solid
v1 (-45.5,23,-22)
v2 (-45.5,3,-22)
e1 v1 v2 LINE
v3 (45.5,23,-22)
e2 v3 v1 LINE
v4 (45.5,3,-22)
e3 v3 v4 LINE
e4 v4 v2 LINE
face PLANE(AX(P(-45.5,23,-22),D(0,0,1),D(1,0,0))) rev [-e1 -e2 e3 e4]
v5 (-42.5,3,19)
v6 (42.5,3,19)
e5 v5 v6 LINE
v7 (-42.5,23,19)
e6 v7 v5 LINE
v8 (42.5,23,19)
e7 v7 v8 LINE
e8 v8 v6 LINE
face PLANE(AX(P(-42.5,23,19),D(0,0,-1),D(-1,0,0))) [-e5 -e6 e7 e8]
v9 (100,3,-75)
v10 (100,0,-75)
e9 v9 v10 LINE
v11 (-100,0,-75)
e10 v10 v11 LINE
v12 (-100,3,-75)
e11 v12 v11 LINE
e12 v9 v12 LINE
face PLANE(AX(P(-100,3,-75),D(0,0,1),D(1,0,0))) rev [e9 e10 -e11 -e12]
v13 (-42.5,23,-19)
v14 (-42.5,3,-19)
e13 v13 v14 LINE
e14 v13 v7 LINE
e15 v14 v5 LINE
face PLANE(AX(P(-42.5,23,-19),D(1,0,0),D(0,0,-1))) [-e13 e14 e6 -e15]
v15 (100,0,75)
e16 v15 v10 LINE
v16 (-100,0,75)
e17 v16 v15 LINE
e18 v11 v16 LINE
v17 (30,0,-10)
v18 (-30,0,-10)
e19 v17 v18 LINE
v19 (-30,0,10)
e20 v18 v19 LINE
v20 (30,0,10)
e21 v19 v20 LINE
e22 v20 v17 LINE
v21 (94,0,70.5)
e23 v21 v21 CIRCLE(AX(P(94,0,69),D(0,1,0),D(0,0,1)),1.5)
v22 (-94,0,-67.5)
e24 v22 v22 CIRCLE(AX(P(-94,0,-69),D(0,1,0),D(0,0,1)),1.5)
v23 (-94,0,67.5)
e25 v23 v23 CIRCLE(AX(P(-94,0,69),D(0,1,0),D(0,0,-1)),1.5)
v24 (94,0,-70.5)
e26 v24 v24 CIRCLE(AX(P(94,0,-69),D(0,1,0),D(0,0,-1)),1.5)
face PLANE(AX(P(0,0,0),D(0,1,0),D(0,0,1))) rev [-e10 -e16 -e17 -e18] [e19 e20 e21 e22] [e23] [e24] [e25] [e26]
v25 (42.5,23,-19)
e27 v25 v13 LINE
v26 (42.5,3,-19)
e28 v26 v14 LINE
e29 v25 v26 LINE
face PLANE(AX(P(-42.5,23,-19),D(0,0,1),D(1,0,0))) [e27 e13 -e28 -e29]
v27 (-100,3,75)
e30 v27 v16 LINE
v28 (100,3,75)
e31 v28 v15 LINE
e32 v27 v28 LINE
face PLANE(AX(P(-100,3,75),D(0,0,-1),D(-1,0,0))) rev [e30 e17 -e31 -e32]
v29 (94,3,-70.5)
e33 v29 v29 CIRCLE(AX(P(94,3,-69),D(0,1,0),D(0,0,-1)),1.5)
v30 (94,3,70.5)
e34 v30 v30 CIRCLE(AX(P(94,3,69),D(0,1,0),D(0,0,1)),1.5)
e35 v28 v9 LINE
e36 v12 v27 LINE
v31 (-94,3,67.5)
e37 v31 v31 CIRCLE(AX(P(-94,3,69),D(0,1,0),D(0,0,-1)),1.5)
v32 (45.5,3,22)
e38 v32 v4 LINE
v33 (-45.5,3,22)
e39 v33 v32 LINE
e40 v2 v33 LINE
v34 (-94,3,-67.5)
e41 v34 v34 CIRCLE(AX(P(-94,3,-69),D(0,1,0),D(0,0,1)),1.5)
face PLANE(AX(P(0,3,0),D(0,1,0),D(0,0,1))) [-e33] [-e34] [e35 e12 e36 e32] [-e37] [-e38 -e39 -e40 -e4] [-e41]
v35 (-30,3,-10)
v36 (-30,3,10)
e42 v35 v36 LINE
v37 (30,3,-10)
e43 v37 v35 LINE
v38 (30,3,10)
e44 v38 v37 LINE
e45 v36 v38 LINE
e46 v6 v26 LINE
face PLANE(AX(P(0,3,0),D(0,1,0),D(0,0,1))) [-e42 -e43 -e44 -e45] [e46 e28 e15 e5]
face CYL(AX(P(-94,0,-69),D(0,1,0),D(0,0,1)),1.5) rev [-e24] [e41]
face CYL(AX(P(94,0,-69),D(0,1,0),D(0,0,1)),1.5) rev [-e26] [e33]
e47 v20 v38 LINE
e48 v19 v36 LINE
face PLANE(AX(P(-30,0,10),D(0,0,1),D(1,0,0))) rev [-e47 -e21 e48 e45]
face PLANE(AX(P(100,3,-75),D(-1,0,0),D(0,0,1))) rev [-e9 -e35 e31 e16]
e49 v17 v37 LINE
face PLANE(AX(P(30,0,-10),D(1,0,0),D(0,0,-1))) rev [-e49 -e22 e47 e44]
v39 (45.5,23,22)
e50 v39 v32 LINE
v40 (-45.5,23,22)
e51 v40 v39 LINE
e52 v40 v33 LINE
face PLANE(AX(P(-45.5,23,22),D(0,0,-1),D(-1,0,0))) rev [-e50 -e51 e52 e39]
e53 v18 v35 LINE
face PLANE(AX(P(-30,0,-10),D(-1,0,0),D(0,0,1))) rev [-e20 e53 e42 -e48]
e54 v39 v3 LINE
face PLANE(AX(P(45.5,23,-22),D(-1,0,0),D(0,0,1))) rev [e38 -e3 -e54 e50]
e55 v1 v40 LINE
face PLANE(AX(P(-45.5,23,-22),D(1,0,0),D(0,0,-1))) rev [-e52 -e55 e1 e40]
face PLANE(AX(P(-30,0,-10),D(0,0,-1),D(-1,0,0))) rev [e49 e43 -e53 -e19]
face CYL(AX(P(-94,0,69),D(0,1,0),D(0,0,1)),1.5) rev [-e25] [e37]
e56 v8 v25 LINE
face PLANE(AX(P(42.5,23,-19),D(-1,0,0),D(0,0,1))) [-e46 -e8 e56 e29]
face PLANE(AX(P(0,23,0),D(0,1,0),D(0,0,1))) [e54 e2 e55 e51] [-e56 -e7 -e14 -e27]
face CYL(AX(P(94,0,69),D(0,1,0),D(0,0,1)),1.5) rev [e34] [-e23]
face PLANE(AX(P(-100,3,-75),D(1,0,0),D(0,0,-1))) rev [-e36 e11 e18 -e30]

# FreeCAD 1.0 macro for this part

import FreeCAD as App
import Part
import Sketcher

V = App.Vector
Q = App.Units.Quantity

doc = App.newDocument("Part")
body = doc.addObject("PartDesign::Body", "Body")

# Sketch on XZ plane
sketch1 = body.newObject("Sketcher::SketchObject", "Sketch")
sketch1.AttachmentSupport = (doc.getObject("XZ_Plane"), [""])
sketch1.MapMode = "FlatFace"
sketch1.addGeometry(Part.LineSegment(V(-100, -75, 0), V(-100, 75, 0)), False)
sketch1.addGeometry(Part.LineSegment(V(-100, 75, 0), V(100, 75, 0)), False)
sketch1.addGeometry(Part.LineSegment(V(100, 75, 0), V(100, -75, 0)), False)
sketch1.addGeometry(Part.LineSegment(V(100, -75, 0), V(-100, -75, 0)), False)
sketch1.addConstraint(Sketcher.Constraint("Coincident", 0, 2, 1, 1))
sketch1.addConstraint(Sketcher.Constraint("Coincident", 1, 2, 2, 1))
sketch1.addConstraint(Sketcher.Constraint("Coincident", 2, 2, 3, 1))
sketch1.addConstraint(Sketcher.Constraint("Coincident", 3, 2, 0, 1))
sketch1.addConstraint(Sketcher.Constraint("Vertical", 0))
sketch1.addConstraint(Sketcher.Constraint("Horizontal", 1))
sketch1.addConstraint(Sketcher.Constraint("Vertical", 2))
sketch1.addConstraint(Sketcher.Constraint("Horizontal", 3))
sketch1.addConstraint(Sketcher.Constraint("Symmetric", 0, 2, 2, 2, -1, 1))
sketch1.addConstraint(Sketcher.Constraint("DistanceX", 1, 1, 1, 2, Q("200 mm")))
sketch1.addConstraint(Sketcher.Constraint("DistanceY", 0, 1, 0, 2, Q("150 mm")))
pad1 = body.newObject("PartDesign::Pad", "Pad")
pad1.Profile = sketch1
pad1.Length = 3
pad1.Reversed = True

# Sketch on XZ plane
sketch2 = body.newObject("Sketcher::SketchObject", "Sketch001")
sketch2.AttachmentSupport = (doc.getObject("XZ_Plane"), [""])
sketch2.MapMode = "FlatFace"
sketch2.AttachmentOffset = App.Placement(V(0, 0, -3), App.Rotation())
sketch2.addGeometry(Part.Circle(V(94, 69, 0), V(0, 0, 1), 1.5), False)
sketch2.addGeometry(Part.Circle(V(94, -69, 0), V(0, 0, 1), 1.5), False)
sketch2.addGeometry(Part.Circle(V(-94, 69, 0), V(0, 0, 1), 1.5), False)
sketch2.addGeometry(Part.Circle(V(-94, -69, 0), V(0, 0, 1), 1.5), False)
sketch2.addConstraint(Sketcher.Constraint("Equal", 0, 1))
sketch2.addConstraint(Sketcher.Constraint("Equal", 1, 2))
sketch2.addConstraint(Sketcher.Constraint("Equal", 2, 3))
sketch2.addConstraint(Sketcher.Constraint("Symmetric", 1, 3, 2, 3, -1, 1))
sketch2.addConstraint(Sketcher.Constraint("Symmetric", 0, 3, 3, 3, -1, 1))
sketch2.addConstraint(Sketcher.Constraint("Symmetric", 0, 3, 2, 3, -2))
sketch2.addConstraint(Sketcher.Constraint("Diameter", 0, Q("3 mm")))
sketch2.addConstraint(Sketcher.Constraint("DistanceX", -1, 1, 0, 3, Q("94 mm")))
sketch2.addConstraint(Sketcher.Constraint("DistanceY", -1, 1, 0, 3, Q("69 mm")))
pocket1 = body.newObject("PartDesign::Pocket", "Pocket")
pocket1.Profile = sketch2
pocket1.Type = "ThroughAll"
pocket1.Reversed = True

# Sketch on XZ plane
sketch3 = body.newObject("Sketcher::SketchObject", "Sketch002")
sketch3.AttachmentSupport = (doc.getObject("XZ_Plane"), [""])
sketch3.MapMode = "FlatFace"
sketch3.AttachmentOffset = App.Placement(V(0, 0, -3), App.Rotation())
sketch3.addGeometry(Part.LineSegment(V(-30, -10, 0), V(-30, 10, 0)), False)
sketch3.addGeometry(Part.LineSegment(V(-30, 10, 0), V(30, 10, 0)), False)
sketch3.addGeometry(Part.LineSegment(V(30, 10, 0), V(30, -10, 0)), False)
sketch3.addGeometry(Part.LineSegment(V(30, -10, 0), V(-30, -10, 0)), False)
sketch3.addConstraint(Sketcher.Constraint("Coincident", 0, 2, 1, 1))
sketch3.addConstraint(Sketcher.Constraint("Coincident", 1, 2, 2, 1))
sketch3.addConstraint(Sketcher.Constraint("Coincident", 2, 2, 3, 1))
sketch3.addConstraint(Sketcher.Constraint("Coincident", 3, 2, 0, 1))
sketch3.addConstraint(Sketcher.Constraint("Vertical", 0))
sketch3.addConstraint(Sketcher.Constraint("Horizontal", 1))
sketch3.addConstraint(Sketcher.Constraint("Vertical", 2))
sketch3.addConstraint(Sketcher.Constraint("Horizontal", 3))
sketch3.addConstraint(Sketcher.Constraint("Symmetric", 0, 2, 2, 2, -1, 1))
sketch3.addConstraint(Sketcher.Constraint("DistanceX", 1, 1, 1, 2, Q("60 mm")))
sketch3.addConstraint(Sketcher.Constraint("DistanceY", 0, 1, 0, 2, Q("20 mm")))
pocket2 = body.newObject("PartDesign::Pocket", "Pocket001")
pocket2.Profile = sketch3
pocket2.Type = "ThroughAll"
pocket2.Reversed = True

# Sketch on XZ plane
sketch4 = body.newObject("Sketcher::SketchObject", "Sketch003")
sketch4.AttachmentSupport = (doc.getObject("XZ_Plane"), [""])
sketch4.MapMode = "FlatFace"
sketch4.AttachmentOffset = App.Placement(V(0, 0, -3), App.Rotation())
sketch4.addGeometry(Part.LineSegment(V(-46, -22, 0), V(-46, 22, 0)), False)
sketch4.addGeometry(Part.LineSegment(V(-46, 22, 0), V(46, 22, 0)), False)
sketch4.addGeometry(Part.LineSegment(V(46, 22, 0), V(46, -22, 0)), False)
sketch4.addGeometry(Part.LineSegment(V(46, -22, 0), V(-46, -22, 0)), False)
sketch4.addGeometry(Part.LineSegment(V(42, 19, 0), V(-42, 19, 0)), False)
sketch4.addGeometry(Part.LineSegment(V(-42, 19, 0), V(-42, -19, 0)), False)
sketch4.addGeometry(Part.LineSegment(V(-42, -19, 0), V(42, -19, 0)), False)
sketch4.addGeometry(Part.LineSegment(V(42, -19, 0), V(42, 19, 0)), False)
sketch4.addConstraint(Sketcher.Constraint("Coincident", 0, 2, 1, 1))
sketch4.addConstraint(Sketcher.Constraint("Coincident", 1, 2, 2, 1))
sketch4.addConstraint(Sketcher.Constraint("Coincident", 2, 2, 3, 1))
sketch4.addConstraint(Sketcher.Constraint("Coincident", 3, 2, 0, 1))
sketch4.addConstraint(Sketcher.Constraint("Coincident", 4, 2, 5, 1))
sketch4.addConstraint(Sketcher.Constraint("Coincident", 5, 2, 6, 1))
sketch4.addConstraint(Sketcher.Constraint("Coincident", 6, 2, 7, 1))
sketch4.addConstraint(Sketcher.Constraint("Coincident", 7, 2, 4, 1))
sketch4.addConstraint(Sketcher.Constraint("Vertical", 0))
sketch4.addConstraint(Sketcher.Constraint("Horizontal", 1))
sketch4.addConstraint(Sketcher.Constraint("Vertical", 2))
sketch4.addConstraint(Sketcher.Constraint("Horizontal", 3))
sketch4.addConstraint(Sketcher.Constraint("Horizontal", 4))
sketch4.addConstraint(Sketcher.Constraint("Vertical", 5))
sketch4.addConstraint(Sketcher.Constraint("Horizontal", 6))
sketch4.addConstraint(Sketcher.Constraint("Vertical", 7))
sketch4.addConstraint(Sketcher.Constraint("Symmetric", 0, 2, 2, 2, -1, 1))
sketch4.addConstraint(Sketcher.Constraint("Symmetric", 4, 2, 6, 2, -1, 1))
sketch4.addConstraint(Sketcher.Constraint("DistanceX", 1, 1, 1, 2, Q("91 mm")))
sketch4.addConstraint(Sketcher.Constraint("DistanceX", 4, 2, 4, 1, Q("85 mm")))
sketch4.addConstraint(Sketcher.Constraint("DistanceY", 0, 1, 0, 2, Q("44 mm")))
sketch4.addConstraint(Sketcher.Constraint("DistanceY", 5, 2, 5, 1, Q("38 mm")))
pad2 = body.newObject("PartDesign::Pad", "Pad001")
pad2.Profile = sketch4
pad2.Length = 20
pad2.Reversed = True

doc.recompute()
